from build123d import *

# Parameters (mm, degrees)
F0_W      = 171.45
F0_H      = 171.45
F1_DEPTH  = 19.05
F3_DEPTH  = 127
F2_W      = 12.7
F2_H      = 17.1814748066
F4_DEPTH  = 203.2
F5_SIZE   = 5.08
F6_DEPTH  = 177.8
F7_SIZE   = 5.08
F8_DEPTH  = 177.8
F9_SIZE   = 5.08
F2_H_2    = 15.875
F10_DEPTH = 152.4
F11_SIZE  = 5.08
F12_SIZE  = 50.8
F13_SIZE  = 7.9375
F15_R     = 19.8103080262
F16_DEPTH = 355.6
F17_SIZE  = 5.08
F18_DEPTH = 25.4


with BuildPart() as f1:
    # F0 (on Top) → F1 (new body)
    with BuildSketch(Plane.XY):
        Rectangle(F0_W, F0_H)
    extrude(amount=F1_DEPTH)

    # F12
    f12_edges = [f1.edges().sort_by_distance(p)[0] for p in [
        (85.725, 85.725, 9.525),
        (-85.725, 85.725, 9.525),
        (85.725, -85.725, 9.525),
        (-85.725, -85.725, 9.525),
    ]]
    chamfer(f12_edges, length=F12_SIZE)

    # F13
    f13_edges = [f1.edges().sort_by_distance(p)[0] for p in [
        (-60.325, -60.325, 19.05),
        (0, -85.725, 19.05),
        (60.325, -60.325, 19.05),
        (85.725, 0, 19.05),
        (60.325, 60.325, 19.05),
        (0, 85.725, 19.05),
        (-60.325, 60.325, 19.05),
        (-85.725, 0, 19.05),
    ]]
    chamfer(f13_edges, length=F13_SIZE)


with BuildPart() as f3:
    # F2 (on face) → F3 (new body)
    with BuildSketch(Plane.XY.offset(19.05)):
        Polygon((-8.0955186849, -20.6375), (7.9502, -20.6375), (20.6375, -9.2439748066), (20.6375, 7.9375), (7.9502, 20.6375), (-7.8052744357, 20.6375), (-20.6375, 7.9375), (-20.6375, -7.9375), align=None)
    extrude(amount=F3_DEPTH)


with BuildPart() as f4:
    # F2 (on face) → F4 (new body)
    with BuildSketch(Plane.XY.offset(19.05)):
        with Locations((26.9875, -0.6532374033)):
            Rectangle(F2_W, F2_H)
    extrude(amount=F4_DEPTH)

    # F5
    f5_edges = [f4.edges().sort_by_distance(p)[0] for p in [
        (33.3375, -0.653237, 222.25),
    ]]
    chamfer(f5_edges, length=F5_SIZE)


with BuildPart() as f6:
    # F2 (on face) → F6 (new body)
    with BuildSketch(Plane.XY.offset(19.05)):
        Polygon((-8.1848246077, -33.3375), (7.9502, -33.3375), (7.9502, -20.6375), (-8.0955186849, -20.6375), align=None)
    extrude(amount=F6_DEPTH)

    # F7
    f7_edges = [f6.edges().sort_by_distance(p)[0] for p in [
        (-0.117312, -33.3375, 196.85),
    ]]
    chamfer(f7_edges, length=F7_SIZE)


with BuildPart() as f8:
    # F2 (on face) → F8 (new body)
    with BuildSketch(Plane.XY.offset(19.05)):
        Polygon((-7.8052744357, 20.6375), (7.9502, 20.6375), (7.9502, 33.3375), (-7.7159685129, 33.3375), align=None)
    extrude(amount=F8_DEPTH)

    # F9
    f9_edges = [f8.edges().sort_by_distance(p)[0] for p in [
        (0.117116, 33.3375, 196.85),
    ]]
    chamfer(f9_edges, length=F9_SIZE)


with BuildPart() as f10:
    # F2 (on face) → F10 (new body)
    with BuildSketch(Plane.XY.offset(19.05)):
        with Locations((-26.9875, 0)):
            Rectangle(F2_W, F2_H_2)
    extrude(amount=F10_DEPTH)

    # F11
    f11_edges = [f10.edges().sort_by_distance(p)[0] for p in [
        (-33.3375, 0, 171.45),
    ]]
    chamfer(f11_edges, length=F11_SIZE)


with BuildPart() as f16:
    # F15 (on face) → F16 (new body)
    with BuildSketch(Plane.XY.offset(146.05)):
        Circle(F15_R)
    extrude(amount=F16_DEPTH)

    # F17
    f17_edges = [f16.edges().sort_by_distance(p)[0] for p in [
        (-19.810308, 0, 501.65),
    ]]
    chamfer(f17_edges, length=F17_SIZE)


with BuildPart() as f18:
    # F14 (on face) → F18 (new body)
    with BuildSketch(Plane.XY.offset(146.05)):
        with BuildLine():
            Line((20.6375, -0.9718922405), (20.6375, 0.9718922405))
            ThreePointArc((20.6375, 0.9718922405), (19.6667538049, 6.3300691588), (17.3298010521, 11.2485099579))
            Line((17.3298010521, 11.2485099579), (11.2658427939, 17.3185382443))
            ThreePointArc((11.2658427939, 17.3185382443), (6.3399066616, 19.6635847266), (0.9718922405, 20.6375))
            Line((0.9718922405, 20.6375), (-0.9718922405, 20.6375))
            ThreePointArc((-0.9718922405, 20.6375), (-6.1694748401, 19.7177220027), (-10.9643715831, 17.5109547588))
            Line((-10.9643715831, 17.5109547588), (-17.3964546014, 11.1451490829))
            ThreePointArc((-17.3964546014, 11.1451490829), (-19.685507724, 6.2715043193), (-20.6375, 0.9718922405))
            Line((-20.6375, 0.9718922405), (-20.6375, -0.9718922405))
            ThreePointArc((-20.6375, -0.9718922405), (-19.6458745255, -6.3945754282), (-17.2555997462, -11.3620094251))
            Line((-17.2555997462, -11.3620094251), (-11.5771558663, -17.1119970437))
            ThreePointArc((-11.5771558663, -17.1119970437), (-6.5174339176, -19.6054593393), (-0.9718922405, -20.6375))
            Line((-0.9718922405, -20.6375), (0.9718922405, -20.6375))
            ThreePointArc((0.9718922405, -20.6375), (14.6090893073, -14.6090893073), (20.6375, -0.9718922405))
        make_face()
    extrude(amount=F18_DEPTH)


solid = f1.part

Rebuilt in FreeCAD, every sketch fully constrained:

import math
import FreeCAD as App
import Part
import Sketcher

V = App.Vector
Q = App.Units.Quantity


def edges_at(feature, points):
    """Names of the edges that pass closest to the given points."""
    edges = feature.Shape.Edges
    near = lambda p: min(range(len(edges)), key=lambda i: edges[i].distToShape(Part.Vertex(*p))[0])
    return sorted({f"Edge{near(p) + 1}" for p in points})


def add_polygon(sketch, points):
    """Adds a closed chain of lines whose ends are joined by coincident constraints."""
    first, n = sketch.GeometryCount, len(points)
    for a, b in zip(points, points[1:] + points[:1]):
        sketch.addGeometry(Part.LineSegment(App.Vector(*a, 0), App.Vector(*b, 0)), False)
    for i in range(n):
        sketch.addConstraint(Sketcher.Constraint("Coincident", first + i, 2, first + (i + 1) % n, 1))

doc = App.newDocument("Part")
body = doc.addObject("PartDesign::Body", "Body")

sketch1 = body.newObject("Sketcher::SketchObject", "Sketch")
sketch1.AttachmentSupport = (doc.getObject("XY_Plane"), [""])
sketch1.MapMode = "FlatFace"
add_polygon(sketch1, [(-85.725, 85.725), (-85.725, -85.725), (85.725, -85.725), (85.725, 85.725)])
sketch1.addConstraint([
    Sketcher.Constraint("Vertical", 0),
    Sketcher.Constraint("Horizontal", 1),
    Sketcher.Constraint("Vertical", 2),
    Sketcher.Constraint("Horizontal", 3),
    Sketcher.Constraint("Symmetric", 0, 2, 2, 2, -1, 1),
    Sketcher.Constraint("Equal", 3, 0),
    Sketcher.Constraint("DistanceX", 1, 1, 1, 2, Q("6.75 in")),
])
pad1 = body.newObject("PartDesign::Pad", "Pad")
pad1.Profile = sketch1
pad1.Length = Q("0.75 in")
doc.recompute()

chamfer = body.newObject("PartDesign::Chamfer", "Chamfer")
chamfer.Base = (pad1, edges_at(pad1, [
    (85.725, 85.725, 9.525),
    (-85.725, 85.725, 9.525),
    (85.725, -85.725, 9.525),
    (-85.725, -85.725, 9.525),
]))
chamfer.Size = Q("2 in")
doc.recompute()

chamfer2 = body.newObject("PartDesign::Chamfer", "Chamfer001")
chamfer2.Base = (chamfer, edges_at(chamfer, [
    (-60.325, -60.325, 19.05),
    (0, -85.725, 19.05),
    (60.325, -60.325, 19.05),
    (85.725, 0, 19.05),
    (60.325, 60.325, 19.05),
    (0, 85.725, 19.05),
    (-60.325, 60.325, 19.05),
    (-85.725, 0, 19.05),
]))
chamfer2.Size = Q("0.3125 in")
body2 = doc.addObject("PartDesign::Body", "Body001")

sketch2 = body2.newObject("Sketcher::SketchObject", "Sketch001")
sketch2.AttachmentSupport = (doc.getObject("XY_Plane001"), [""])
sketch2.MapMode = "FlatFace"
sketch2.AttachmentOffset = App.Placement(V(0, 0, 0.75 * 25.4), App.Rotation())
add_polygon(sketch2, [(-8.095519, -20.6375), (7.9502, -20.6375), (20.6375, -9.243975), (20.6375, 7.9375), (7.9502, 20.6375), (-7.805274, 20.6375), (-20.6375, 7.9375), (-20.6375, -7.9375)])
sketch2.addConstraint([
    Sketcher.Constraint("Horizontal", 0),
    Sketcher.Constraint("Vertical", 2),
    Sketcher.Constraint("Horizontal", 4),
    Sketcher.Constraint("Vertical", 6),
    Sketcher.Constraint("Symmetric", 2, 2, 6, 2, -1, 1),
    Sketcher.Constraint("Symmetric", 0, 2, 3, 2, -1),
    Sketcher.Constraint("Horizontal", 2, 2, 5, 2),
    Sketcher.Constraint("DistanceY", 2, 2, 3, 2, Q("0.5 in")),
    Sketcher.Constraint("DistanceY", 6, 2, 6, 1, Q("0.625 in")),
    Sketcher.Constraint("DistanceX", -1, 1, 0, 2, Q("0.313 in")),
    Sketcher.Constraint("DistanceX", -1, 1, 1, 2, Q("0.8125 in")),
    Sketcher.Constraint("DistanceX", 0, 1, 0, 2, Q("16.045719 mm")),
    Sketcher.Constraint("Distance", 5, Q("18.054252 mm")),
    Sketcher.Constraint("DistanceY", 2, 1, 2, 2, Q("17.181475 mm")),
])
pad2 = body2.newObject("PartDesign::Pad", "Pad001")
pad2.Profile = sketch2
pad2.Length = Q("5 in")
body3 = doc.addObject("PartDesign::Body", "Body002")

sketch3 = body3.newObject("Sketcher::SketchObject", "Sketch002")
sketch3.AttachmentSupport = (doc.getObject("XY_Plane002"), [""])
sketch3.MapMode = "FlatFace"
sketch3.AttachmentOffset = App.Placement(V(0, 0, 0.75 * 25.4), App.Rotation())
add_polygon(sketch3, [(20.6375, 7.9375), (20.6375, -9.243975), (33.3375, -9.243975), (33.3375, 7.9375)])
sketch3.addConstraint([
    Sketcher.Constraint("Vertical", 0),
    Sketcher.Constraint("Horizontal", 1),
    Sketcher.Constraint("Vertical", 2),
    Sketcher.Constraint("Horizontal", 3),
    Sketcher.Constraint("DistanceX", 1, 1, 1, 2, Q("0.5 in")),
    Sketcher.Constraint("DistanceX", -1, 1, 0, 2, Q("0.8125 in")),
    Sketcher.Constraint("DistanceY", -1, 1, 2, 2, Q("0.3125 in")),
    Sketcher.Constraint("DistanceY", 0, 2, 0, 1, Q("17.181475 mm")),
])
pad3 = body3.newObject("PartDesign::Pad", "Pad002")
pad3.Profile = sketch3
pad3.Length = Q("8 in")
doc.recompute()

chamfer3 = body3.newObject("PartDesign::Chamfer", "Chamfer002")
chamfer3.Base = (pad3, edges_at(pad3, [(33.337, -0.653, 222.25)]))
chamfer3.Size = Q("0.2 in")
body4 = doc.addObject("PartDesign::Body", "Body003")

sketch4 = body4.newObject("Sketcher::SketchObject", "Sketch003")
sketch4.AttachmentSupport = (doc.getObject("XY_Plane003"), [""])
sketch4.MapMode = "FlatFace"
sketch4.AttachmentOffset = App.Placement(V(0, 0, 0.75 * 25.4), App.Rotation())
add_polygon(sketch4, [(-8.184825, -33.3375), (7.9502, -33.3375), (7.9502, -20.6375), (-8.095519, -20.6375)])
sketch4.addConstraint([
    Sketcher.Constraint("Horizontal", 0),
    Sketcher.Constraint("Vertical", 1),
    Sketcher.Constraint("Horizontal", 2),
    Sketcher.Constraint("DistanceY", 1, 1, 1, 2, Q("0.5 in")),
    Sketcher.Constraint("DistanceX", -1, 1, 0, 2, Q("0.313 in")),
    Sketcher.Constraint("DistanceY", 0, 2, -1, 1, Q("1.3125 in")),
    Sketcher.Constraint("DistanceX", 2, 2, 2, 1, Q("16.045719 mm")),
    Sketcher.Constraint("DistanceX", 0, 1, 0, 2, Q("16.135025 mm")),
])
pad4 = body4.newObject("PartDesign::Pad", "Pad003")
pad4.Profile = sketch4
pad4.Length = Q("7 in")
doc.recompute()

chamfer4 = body4.newObject("PartDesign::Chamfer", "Chamfer003")
chamfer4.Base = (pad4, edges_at(pad4, [(-0.117, -33.337, 196.85)]))
chamfer4.Size = Q("0.2 in")
body5 = doc.addObject("PartDesign::Body", "Body004")

sketch5 = body5.newObject("Sketcher::SketchObject", "Sketch004")
sketch5.AttachmentSupport = (doc.getObject("XY_Plane004"), [""])
sketch5.MapMode = "FlatFace"
sketch5.AttachmentOffset = App.Placement(V(0, 0, 0.75 * 25.4), App.Rotation())
add_polygon(sketch5, [(-7.805274, 20.6375), (7.9502, 20.6375), (7.9502, 33.3375), (-7.715969, 33.3375)])
sketch5.addConstraint([
    Sketcher.Constraint("Horizontal", 0),
    Sketcher.Constraint("Vertical", 1),
    Sketcher.Constraint("Horizontal", 2),
    Sketcher.Constraint("DistanceY", 1, 1, 1, 2, Q("0.5 in")),
    Sketcher.Constraint("DistanceX", -1, 1, 0, 2, Q("0.313 in")),
    Sketcher.Constraint("DistanceY", -1, 1, 0, 2, Q("0.8125 in")),
    Sketcher.Constraint("DistanceX", 2, 2, 2, 1, Q("15.666169 mm")),
    Sketcher.Constraint("DistanceX", 0, 1, 0, 2, Q("15.755474 mm")),
])
pad5 = body5.newObject("PartDesign::Pad", "Pad004")
pad5.Profile = sketch5
pad5.Length = Q("7 in")
doc.recompute()

chamfer5 = body5.newObject("PartDesign::Chamfer", "Chamfer004")
chamfer5.Base = (pad5, edges_at(pad5, [(0.117, 33.337, 196.85)]))
chamfer5.Size = Q("0.2 in")
body6 = doc.addObject("PartDesign::Body", "Body005")

sketch6 = body6.newObject("Sketcher::SketchObject", "Sketch005")
sketch6.AttachmentSupport = (doc.getObject("XY_Plane005"), [""])
sketch6.MapMode = "FlatFace"
sketch6.AttachmentOffset = App.Placement(V(0, 0, 0.75 * 25.4), App.Rotation())
add_polygon(sketch6, [(-33.3375, 7.9375), (-33.3375, -7.9375), (-20.6375, -7.9375), (-20.6375, 7.9375)])
sketch6.addConstraint([
    Sketcher.Constraint("Vertical", 0),
    Sketcher.Constraint("Horizontal", 1),
    Sketcher.Constraint("Vertical", 2),
    Sketcher.Constraint("Horizontal", 3),
    Sketcher.Constraint("DistanceX", 1, 1, 1, 2, Q("0.5 in")),
    Sketcher.Constraint("DistanceY", 0, 2, 0, 1, Q("0.625 in")),
    Sketcher.Constraint("DistanceX", 0, 2, -1, 1, Q("1.3125 in")),
    Sketcher.Constraint("DistanceY", 0, 2, -1, 1, Q("0.3125 in")),
])
pad6 = body6.newObject("PartDesign::Pad", "Pad005")
pad6.Profile = sketch6
pad6.Length = Q("6 in")
doc.recompute()

chamfer6 = body6.newObject("PartDesign::Chamfer", "Chamfer005")
chamfer6.Base = (pad6, edges_at(pad6, [(-33.337, 0, 171.45)]))
chamfer6.Size = Q("0.2 in")
body7 = doc.addObject("PartDesign::Body", "Body006")

sketch7 = body7.newObject("Sketcher::SketchObject", "Sketch006")
sketch7.AttachmentSupport = (doc.getObject("XY_Plane006"), [""])
sketch7.MapMode = "FlatFace"
sketch7.AttachmentOffset = App.Placement(V(0, 0, 5.75 * 25.4), App.Rotation())
sketch7.addGeometry(Part.Circle(V(0, 0, 0), V(0, 0, 1), 19.810308), False)
sketch7.addConstraint([
    Sketcher.Constraint("Coincident", 0, 3, -1, 1),
    Sketcher.Constraint("Diameter", 0, Q("39.620616 mm")),
])
pad7 = body7.newObject("PartDesign::Pad", "Pad006")
pad7.Profile = sketch7
pad7.Length = Q("14 in")
doc.recompute()

chamfer7 = body7.newObject("PartDesign::Chamfer", "Chamfer006")
chamfer7.Base = (pad7, edges_at(pad7, [(-19.81, 0, 501.65)]))
chamfer7.Size = Q("0.2 in")
body8 = doc.addObject("PartDesign::Body", "Body007")

sketch8 = body8.newObject("Sketcher::SketchObject", "Sketch007")
sketch8.AttachmentSupport = (doc.getObject("XY_Plane007"), [""])
sketch8.MapMode = "FlatFace"
sketch8.AttachmentOffset = App.Placement(V(0, 0, 5.75 * 25.4), App.Rotation())
sketch8.addGeometry([
    Part.LineSegment(V(20.6375, -0.971892, 0), V(20.6375, 0.971892, 0)),
    Part.ArcOfCircle(Part.Circle(V(0, 0, 0), V(0, 0, 1), 20.660372), math.radians(2.696267), math.radians(32.986988)),
    Part.LineSegment(V(17.329801, 11.24851, 0), V(11.265843, 17.318538, 0)),
    Part.ArcOfCircle(Part.Circle(V(0, 0, 0), V(0, 0, 1), 20.660372), math.radians(56.955687), math.radians(87.303733)),
    Part.LineSegment(V(0.971892, 20.6375, 0), V(-0.971892, 20.6375, 0)),
    Part.ArcOfCircle(Part.Circle(V(0, 0, 0), V(0, 0, 1), 20.660372), math.radians(92.696267), math.radians(122.052475)),
    Part.LineSegment(V(-10.964372, 17.510955, 0), V(-17.396455, 11.145149, 0)),
    Part.ArcOfCircle(Part.Circle(V(0, 0, 0), V(0, 0, 1), 20.660372), math.radians(147.354086), math.radians(177.303733)),
    Part.LineSegment(V(-20.6375, 0.971892, 0), V(-20.6375, -0.971892, 0)),
    Part.ArcOfCircle(Part.Circle(V(0, 0, 0), V(0, 0, 1), 20.660372), math.radians(-177.303733), math.radians(-146.636956)),
    Part.LineSegment(V(-17.2556, -11.362009, 0), V(-11.577156, -17.111997, 0)),
    Part.ArcOfCircle(Part.Circle(V(0, 0, 0), V(0, 0, 1), 20.660372), math.radians(-124.080395), math.radians(-92.696267)),
    Part.LineSegment(V(-0.971892, -20.6375, 0), V(0.971892, -20.6375, 0)),
    Part.ArcOfCircle(Part.Circle(V(0, 0, 0), V(0, 0, 1), 20.660372), math.radians(-87.303733), math.radians(-2.696267)),
], False)
sketch8.addConstraint([
    Sketcher.Constraint("Coincident", 0, 2, 1, 1),
    Sketcher.Constraint("Coincident", 1, 2, 2, 1),
    Sketcher.Constraint("Coincident", 2, 2, 3, 1),
    Sketcher.Constraint("Coincident", 3, 2, 4, 1),
    Sketcher.Constraint("Coincident", 4, 2, 5, 1),
    Sketcher.Constraint("Coincident", 5, 2, 6, 1),
    Sketcher.Constraint("Coincident", 6, 2, 7, 1),
    Sketcher.Constraint("Coincident", 7, 2, 8, 1),
    Sketcher.Constraint("Coincident", 8, 2, 9, 1),
    Sketcher.Constraint("Coincident", 9, 2, 10, 1),
    Sketcher.Constraint("Coincident", 10, 2, 11, 1),
    Sketcher.Constraint("Coincident", 11, 2, 12, 1),
    Sketcher.Constraint("Coincident", 12, 2, 13, 1),
    Sketcher.Constraint("Coincident", 13, 2, 0, 1),
    Sketcher.Constraint("Vertical", 0),
    Sketcher.Constraint("Horizontal", 4),
    Sketcher.Constraint("Vertical", 8),
    Sketcher.Constraint("Horizontal", 12),
    Sketcher.Constraint("Coincident", 1, 3, -1, 1),
    Sketcher.Constraint("Coincident", 3, 3, -1, 1),
    Sketcher.Constraint("Coincident", 5, 3, -1, 1),
    Sketcher.Constraint("Coincident", 7, 3, -1, 1),
    Sketcher.Constraint("Coincident", 9, 3, -1, 1),
    Sketcher.Constraint("Coincident", 11, 3, -1, 1),
    Sketcher.Constraint("Coincident", 13, 3, -1, 1),
    Sketcher.Constraint("Equal", 1, 3),
    Sketcher.Constraint("Equal", 3, 5),
    Sketcher.Constraint("Equal", 5, 7),
    Sketcher.Constraint("Equal", 7, 9),
    Sketcher.Constraint("Equal", 9, 11),
    Sketcher.Constraint("Equal", 11, 13),
    Sketcher.Constraint("Horizontal", 0, 2, 7, 2),
    Sketcher.Constraint("Vertical", 4, 2, 11, 2),
    Sketcher.Constraint("Equal", 12, 0),
    Sketcher.Constraint("DistanceX", -1, 1, 0, 2, Q("0.8125 in")),
    Sketcher.Constraint("Radius", 1, Q("20.660372 mm")),
    Sketcher.Constraint("DistanceX", -1, 1, 1, 2, Q("17.329801 mm")),
    Sketcher.Constraint("DistanceX", 9, 2, -1, 1, Q("17.2556 mm")),
    Sketcher.Constraint("Distance", 10, Q("8.08128 mm")),
    Sketcher.Constraint("DistanceY", -1, 1, 2, 2, Q("17.318538 mm")),
    Sketcher.Constraint("DistanceX", 5, 2, -1, 1, Q("10.964372 mm")),
    Sketcher.Constraint("DistanceY", -1, 1, 6, 2, Q("11.145149 mm")),
])
pad8 = body8.newObject("PartDesign::Pad", "Pad007")
pad8.Profile = sketch8
pad8.Length = Q("1 in")
body2.Visibility = False
body3.Visibility = False
body4.Visibility = False
body5.Visibility = False
body6.Visibility = False
body7.Visibility = False
body8.Visibility = False

doc.recompute()
